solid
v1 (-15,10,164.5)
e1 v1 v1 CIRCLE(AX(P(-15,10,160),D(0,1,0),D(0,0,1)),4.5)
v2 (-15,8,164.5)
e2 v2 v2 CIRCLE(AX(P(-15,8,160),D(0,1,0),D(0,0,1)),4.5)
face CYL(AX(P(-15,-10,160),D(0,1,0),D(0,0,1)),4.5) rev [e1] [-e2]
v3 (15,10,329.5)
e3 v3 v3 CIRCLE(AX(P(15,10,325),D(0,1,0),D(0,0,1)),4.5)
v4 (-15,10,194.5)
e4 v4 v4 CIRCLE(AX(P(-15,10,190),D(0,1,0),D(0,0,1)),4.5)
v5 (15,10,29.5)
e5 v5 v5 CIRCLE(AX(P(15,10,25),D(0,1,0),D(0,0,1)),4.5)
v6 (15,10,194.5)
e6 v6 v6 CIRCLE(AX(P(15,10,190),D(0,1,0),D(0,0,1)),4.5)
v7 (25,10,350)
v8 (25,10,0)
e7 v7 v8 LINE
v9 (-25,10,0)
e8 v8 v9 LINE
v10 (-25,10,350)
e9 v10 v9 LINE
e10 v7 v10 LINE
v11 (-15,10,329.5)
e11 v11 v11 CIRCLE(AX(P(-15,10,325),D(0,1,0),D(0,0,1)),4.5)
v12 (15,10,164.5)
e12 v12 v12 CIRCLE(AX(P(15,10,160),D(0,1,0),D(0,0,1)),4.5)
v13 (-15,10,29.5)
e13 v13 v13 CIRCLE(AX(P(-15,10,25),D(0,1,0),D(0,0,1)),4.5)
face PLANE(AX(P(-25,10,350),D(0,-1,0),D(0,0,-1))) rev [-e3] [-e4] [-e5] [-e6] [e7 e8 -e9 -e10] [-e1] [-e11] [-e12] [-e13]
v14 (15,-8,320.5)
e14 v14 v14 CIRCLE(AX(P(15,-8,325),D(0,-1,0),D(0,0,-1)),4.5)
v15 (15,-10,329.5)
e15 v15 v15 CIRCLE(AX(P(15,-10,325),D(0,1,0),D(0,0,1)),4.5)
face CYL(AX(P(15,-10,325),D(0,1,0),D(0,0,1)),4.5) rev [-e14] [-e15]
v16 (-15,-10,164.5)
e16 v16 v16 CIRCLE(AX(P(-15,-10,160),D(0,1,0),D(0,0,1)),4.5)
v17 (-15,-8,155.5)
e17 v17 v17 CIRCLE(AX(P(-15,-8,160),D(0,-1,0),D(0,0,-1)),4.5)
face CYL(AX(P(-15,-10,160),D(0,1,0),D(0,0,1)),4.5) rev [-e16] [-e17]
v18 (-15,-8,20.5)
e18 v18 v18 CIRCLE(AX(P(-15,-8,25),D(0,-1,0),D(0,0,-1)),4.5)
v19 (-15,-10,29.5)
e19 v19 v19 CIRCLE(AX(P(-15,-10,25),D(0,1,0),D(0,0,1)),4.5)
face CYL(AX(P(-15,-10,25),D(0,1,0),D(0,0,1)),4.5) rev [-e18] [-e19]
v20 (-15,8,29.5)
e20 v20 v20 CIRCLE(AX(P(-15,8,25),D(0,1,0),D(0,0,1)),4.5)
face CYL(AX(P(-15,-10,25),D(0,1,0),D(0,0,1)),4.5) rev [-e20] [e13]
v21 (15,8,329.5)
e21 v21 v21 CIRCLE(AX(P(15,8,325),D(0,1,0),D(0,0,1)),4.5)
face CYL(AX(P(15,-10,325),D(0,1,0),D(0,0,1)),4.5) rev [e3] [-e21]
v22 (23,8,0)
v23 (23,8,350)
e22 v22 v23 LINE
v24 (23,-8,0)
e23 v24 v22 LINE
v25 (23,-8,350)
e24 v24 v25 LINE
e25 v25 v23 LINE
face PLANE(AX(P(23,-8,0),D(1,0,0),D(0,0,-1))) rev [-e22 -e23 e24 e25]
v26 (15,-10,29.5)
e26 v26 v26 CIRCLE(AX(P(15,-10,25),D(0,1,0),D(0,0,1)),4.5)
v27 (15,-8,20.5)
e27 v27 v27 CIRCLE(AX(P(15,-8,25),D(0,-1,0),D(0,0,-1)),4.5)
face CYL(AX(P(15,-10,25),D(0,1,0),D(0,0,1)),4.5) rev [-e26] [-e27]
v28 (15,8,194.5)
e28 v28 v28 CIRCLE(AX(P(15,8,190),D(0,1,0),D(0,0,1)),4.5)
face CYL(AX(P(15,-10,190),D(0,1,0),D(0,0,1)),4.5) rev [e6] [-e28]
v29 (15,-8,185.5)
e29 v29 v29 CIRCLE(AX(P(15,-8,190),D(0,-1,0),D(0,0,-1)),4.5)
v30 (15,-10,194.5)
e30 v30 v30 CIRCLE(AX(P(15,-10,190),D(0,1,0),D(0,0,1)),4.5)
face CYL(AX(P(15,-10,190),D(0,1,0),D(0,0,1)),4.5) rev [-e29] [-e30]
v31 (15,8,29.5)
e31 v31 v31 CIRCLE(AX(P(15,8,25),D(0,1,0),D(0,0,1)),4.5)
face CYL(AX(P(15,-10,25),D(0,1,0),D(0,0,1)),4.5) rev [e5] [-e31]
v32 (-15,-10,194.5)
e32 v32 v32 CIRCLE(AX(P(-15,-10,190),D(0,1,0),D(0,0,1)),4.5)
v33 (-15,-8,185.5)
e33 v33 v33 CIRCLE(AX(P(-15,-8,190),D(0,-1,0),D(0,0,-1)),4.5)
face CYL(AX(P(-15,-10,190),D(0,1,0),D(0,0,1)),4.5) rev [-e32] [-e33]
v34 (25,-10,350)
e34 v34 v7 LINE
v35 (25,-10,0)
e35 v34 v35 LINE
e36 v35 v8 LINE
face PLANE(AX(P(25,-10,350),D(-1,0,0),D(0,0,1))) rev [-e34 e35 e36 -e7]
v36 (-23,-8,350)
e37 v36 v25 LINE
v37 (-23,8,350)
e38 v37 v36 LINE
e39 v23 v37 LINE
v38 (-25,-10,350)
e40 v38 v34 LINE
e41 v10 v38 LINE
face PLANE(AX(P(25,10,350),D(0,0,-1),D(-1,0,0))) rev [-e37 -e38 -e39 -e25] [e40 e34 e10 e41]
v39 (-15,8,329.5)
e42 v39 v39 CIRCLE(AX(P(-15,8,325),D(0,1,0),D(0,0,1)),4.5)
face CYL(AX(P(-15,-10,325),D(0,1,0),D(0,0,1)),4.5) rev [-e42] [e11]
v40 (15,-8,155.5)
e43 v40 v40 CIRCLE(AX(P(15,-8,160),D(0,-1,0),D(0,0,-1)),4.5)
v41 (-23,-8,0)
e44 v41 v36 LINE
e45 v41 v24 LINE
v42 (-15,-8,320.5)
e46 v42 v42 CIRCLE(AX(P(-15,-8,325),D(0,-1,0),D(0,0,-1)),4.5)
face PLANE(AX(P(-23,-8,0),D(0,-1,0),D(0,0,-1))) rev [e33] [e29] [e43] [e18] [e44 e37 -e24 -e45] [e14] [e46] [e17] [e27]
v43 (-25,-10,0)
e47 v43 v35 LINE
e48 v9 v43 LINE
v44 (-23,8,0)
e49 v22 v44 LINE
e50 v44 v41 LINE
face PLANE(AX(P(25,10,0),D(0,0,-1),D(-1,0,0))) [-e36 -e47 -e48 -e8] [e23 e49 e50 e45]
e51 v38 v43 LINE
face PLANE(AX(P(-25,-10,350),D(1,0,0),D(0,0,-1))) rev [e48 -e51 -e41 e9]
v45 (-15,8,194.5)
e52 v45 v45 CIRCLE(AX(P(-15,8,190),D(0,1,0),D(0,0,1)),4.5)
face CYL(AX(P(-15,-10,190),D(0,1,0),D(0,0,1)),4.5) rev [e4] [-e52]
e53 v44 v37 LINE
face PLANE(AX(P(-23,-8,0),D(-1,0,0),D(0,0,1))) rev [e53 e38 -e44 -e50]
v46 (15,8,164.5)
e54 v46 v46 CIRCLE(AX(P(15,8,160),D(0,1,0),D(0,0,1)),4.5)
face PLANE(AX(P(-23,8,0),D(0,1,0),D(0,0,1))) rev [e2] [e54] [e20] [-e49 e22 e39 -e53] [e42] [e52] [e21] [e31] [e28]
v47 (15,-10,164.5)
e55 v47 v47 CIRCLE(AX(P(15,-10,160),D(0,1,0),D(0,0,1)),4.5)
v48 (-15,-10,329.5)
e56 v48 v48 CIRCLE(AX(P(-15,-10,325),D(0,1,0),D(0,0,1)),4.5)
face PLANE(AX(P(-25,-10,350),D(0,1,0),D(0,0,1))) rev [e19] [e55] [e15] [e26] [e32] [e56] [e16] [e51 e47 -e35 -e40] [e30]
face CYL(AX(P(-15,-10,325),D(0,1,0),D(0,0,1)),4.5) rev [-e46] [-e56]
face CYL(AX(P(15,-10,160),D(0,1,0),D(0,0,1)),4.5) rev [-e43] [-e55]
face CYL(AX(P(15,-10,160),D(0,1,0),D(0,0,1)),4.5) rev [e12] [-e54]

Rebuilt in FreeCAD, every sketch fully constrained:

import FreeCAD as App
import Part
import Sketcher
from FreeCAD import Vector
Q = App.Units.Quantity


def add_polygon(sketch, points):
    """Adds a closed chain of lines whose ends are joined by coincident constraints."""
    first, n = sketch.GeometryCount, len(points)
    for a, b in zip(points, points[1:] + points[:1]):
        sketch.addGeometry(Part.LineSegment(App.Vector(*a, 0), App.Vector(*b, 0)), False)
    for i in range(n):
        sketch.addConstraint(Sketcher.Constraint("Coincident", first + i, 2, first + (i + 1) % n, 1))

doc = App.newDocument("Part")
params = doc.addObject("Spreadsheet::Sheet", "Params")
for row, (alias, value) in enumerate([
    ("sketch1_width", "50 mm"),
    ("sketch1_height", "20 mm"),
    ("pad1_length", "350 mm"),
    ("sketch2_width", "46 mm"),
    ("sketch2_height", "16 mm"),
    ("sketch3_diameter", "9 mm"),
], start=1):
    params.set(f"A{row}", alias)
    params.set(f"B{row}", "=" + value)
    params.setAlias(f"B{row}", alias)

body = doc.addObject("PartDesign::Body", "Body")

# Sketch on XY plane
sketch1 = body.newObject("Sketcher::SketchObject", "Sketch")
sketch1.AttachmentSupport = (doc.getObject("XY_Plane"), [""])
sketch1.MapMode = "FlatFace"
add_polygon(sketch1, [(-25, 10), (-25, -10), (25, -10), (25, 10)])  # lines 0-3
sketch1.addConstraint([
    Sketcher.Constraint("Vertical", 0),
    Sketcher.Constraint("Horizontal", 1),
    Sketcher.Constraint("Vertical", 2),
    Sketcher.Constraint("Horizontal", 3),
    Sketcher.Constraint("Symmetric", 0, 2, 2, 2, -1, 1),
    Sketcher.Constraint("DistanceX", 1, 1, 1, 2, Q("50 mm")),
    Sketcher.Constraint("DistanceY", 0, 2, 0, 1, Q("20 mm")),
])
sketch1.setExpression("Constraints[9]", "Params.sketch1_width")
sketch1.setExpression("Constraints[10]", "Params.sketch1_height")
pad1 = body.newObject("PartDesign::Pad", "Pad")
pad1.Profile = sketch1
pad1.setExpression("Length", "Params.pad1_length")

# Sketch on XY plane
sketch2 = body.newObject("Sketcher::SketchObject", "Sketch001")
sketch2.AttachmentSupport = (doc.getObject("XY_Plane"), [""])
sketch2.MapMode = "FlatFace"
sketch2.AttachmentOffset = App.Placement(Vector(0, 0, 350), App.Rotation())
add_polygon(sketch2, [(-23, 8), (-23, -8), (23, -8), (23, 8)])  # lines 0-3
sketch2.addConstraint([
    Sketcher.Constraint("Vertical", 0),
    Sketcher.Constraint("Horizontal", 1),
    Sketcher.Constraint("Vertical", 2),
    Sketcher.Constraint("Horizontal", 3),
    Sketcher.Constraint("Symmetric", 0, 2, 2, 2, -1, 1),
    Sketcher.Constraint("DistanceX", 1, 1, 1, 2, Q("46 mm")),
    Sketcher.Constraint("DistanceY", 0, 2, 0, 1, Q("16 mm")),
])
sketch2.setExpression("Constraints[9]", "Params.sketch2_width")
sketch2.setExpression("Constraints[10]", "Params.sketch2_height")
pocket1 = body.newObject("PartDesign::Pocket", "Pocket")
pocket1.Profile = sketch2
pocket1.Type = "ThroughAll"

# Sketch on XZ plane
sketch3 = body.newObject("Sketcher::SketchObject", "Sketch002")
sketch3.AttachmentSupport = (doc.getObject("XZ_Plane"), [""])
sketch3.MapMode = "FlatFace"
sketch3.AttachmentOffset = App.Placement(Vector(0, 0, -10), App.Rotation())
sketch3.addGeometry([
    Part.Circle(Vector(15, 325, 0), Vector(0, 0, 1), 4.5),  # 0
    Part.Circle(Vector(-15, 325, 0), Vector(0, 0, 1), 4.5),  # 1
    Part.Circle(Vector(15, 25, 0), Vector(0, 0, 1), 4.5),  # 2
    Part.Circle(Vector(-15, 25, 0), Vector(0, 0, 1), 4.5),  # 3
    Part.Circle(Vector(15, 160, 0), Vector(0, 0, 1), 4.5),  # 4
    Part.Circle(Vector(15, 190, 0), Vector(0, 0, 1), 4.5),  # 5
    Part.Circle(Vector(-15, 190, 0), Vector(0, 0, 1), 4.5),  # 6
    Part.Circle(Vector(-15, 160, 0), Vector(0, 0, 1), 4.5),  # 7
], False)
sketch3.addConstraint([
    Sketcher.Constraint("Equal", 0, 1),
    Sketcher.Constraint("Equal", 1, 2),
    Sketcher.Constraint("Equal", 2, 3),
    Sketcher.Constraint("Equal", 3, 4),
    Sketcher.Constraint("Equal", 4, 5),
    Sketcher.Constraint("Equal", 5, 6),
    Sketcher.Constraint("Equal", 6, 7),
    Sketcher.Constraint("Symmetric", 0, 3, 1, 3, -2),
    Sketcher.Constraint("Symmetric", 2, 3, 3, 3, -2),
    Sketcher.Constraint("Symmetric", 5, 3, 6, 3, -2),
    Sketcher.Constraint("Symmetric", 4, 3, 7, 3, -2),
    Sketcher.Constraint("Vertical", 0, 3, 2, 3),
    Sketcher.Constraint("Vertical", 2, 3, 4, 3),
    Sketcher.Constraint("Vertical", 4, 3, 5, 3),
    Sketcher.Constraint("Diameter", 0, Q("9 mm")),
    Sketcher.Constraint("DistanceX", -1, 1, 0, 3, Q("15 mm")),
    Sketcher.Constraint("DistanceY", -1, 1, 0, 3, Q("325 mm")),
    Sketcher.Constraint("DistanceY", -1, 1, 2, 3, Q("25 mm")),
    Sketcher.Constraint("DistanceY", -1, 1, 4, 3, Q("160 mm")),
    Sketcher.Constraint("DistanceY", -1, 1, 5, 3, Q("190 mm")),
])
sketch3.setExpression("Constraints[14]", "Params.sketch3_diameter")
pocket2 = body.newObject("PartDesign::Pocket", "Pocket001")
pocket2.Profile = sketch3
pocket2.Type = "ThroughAll"
pocket2.Reversed = True

doc.recompute()
